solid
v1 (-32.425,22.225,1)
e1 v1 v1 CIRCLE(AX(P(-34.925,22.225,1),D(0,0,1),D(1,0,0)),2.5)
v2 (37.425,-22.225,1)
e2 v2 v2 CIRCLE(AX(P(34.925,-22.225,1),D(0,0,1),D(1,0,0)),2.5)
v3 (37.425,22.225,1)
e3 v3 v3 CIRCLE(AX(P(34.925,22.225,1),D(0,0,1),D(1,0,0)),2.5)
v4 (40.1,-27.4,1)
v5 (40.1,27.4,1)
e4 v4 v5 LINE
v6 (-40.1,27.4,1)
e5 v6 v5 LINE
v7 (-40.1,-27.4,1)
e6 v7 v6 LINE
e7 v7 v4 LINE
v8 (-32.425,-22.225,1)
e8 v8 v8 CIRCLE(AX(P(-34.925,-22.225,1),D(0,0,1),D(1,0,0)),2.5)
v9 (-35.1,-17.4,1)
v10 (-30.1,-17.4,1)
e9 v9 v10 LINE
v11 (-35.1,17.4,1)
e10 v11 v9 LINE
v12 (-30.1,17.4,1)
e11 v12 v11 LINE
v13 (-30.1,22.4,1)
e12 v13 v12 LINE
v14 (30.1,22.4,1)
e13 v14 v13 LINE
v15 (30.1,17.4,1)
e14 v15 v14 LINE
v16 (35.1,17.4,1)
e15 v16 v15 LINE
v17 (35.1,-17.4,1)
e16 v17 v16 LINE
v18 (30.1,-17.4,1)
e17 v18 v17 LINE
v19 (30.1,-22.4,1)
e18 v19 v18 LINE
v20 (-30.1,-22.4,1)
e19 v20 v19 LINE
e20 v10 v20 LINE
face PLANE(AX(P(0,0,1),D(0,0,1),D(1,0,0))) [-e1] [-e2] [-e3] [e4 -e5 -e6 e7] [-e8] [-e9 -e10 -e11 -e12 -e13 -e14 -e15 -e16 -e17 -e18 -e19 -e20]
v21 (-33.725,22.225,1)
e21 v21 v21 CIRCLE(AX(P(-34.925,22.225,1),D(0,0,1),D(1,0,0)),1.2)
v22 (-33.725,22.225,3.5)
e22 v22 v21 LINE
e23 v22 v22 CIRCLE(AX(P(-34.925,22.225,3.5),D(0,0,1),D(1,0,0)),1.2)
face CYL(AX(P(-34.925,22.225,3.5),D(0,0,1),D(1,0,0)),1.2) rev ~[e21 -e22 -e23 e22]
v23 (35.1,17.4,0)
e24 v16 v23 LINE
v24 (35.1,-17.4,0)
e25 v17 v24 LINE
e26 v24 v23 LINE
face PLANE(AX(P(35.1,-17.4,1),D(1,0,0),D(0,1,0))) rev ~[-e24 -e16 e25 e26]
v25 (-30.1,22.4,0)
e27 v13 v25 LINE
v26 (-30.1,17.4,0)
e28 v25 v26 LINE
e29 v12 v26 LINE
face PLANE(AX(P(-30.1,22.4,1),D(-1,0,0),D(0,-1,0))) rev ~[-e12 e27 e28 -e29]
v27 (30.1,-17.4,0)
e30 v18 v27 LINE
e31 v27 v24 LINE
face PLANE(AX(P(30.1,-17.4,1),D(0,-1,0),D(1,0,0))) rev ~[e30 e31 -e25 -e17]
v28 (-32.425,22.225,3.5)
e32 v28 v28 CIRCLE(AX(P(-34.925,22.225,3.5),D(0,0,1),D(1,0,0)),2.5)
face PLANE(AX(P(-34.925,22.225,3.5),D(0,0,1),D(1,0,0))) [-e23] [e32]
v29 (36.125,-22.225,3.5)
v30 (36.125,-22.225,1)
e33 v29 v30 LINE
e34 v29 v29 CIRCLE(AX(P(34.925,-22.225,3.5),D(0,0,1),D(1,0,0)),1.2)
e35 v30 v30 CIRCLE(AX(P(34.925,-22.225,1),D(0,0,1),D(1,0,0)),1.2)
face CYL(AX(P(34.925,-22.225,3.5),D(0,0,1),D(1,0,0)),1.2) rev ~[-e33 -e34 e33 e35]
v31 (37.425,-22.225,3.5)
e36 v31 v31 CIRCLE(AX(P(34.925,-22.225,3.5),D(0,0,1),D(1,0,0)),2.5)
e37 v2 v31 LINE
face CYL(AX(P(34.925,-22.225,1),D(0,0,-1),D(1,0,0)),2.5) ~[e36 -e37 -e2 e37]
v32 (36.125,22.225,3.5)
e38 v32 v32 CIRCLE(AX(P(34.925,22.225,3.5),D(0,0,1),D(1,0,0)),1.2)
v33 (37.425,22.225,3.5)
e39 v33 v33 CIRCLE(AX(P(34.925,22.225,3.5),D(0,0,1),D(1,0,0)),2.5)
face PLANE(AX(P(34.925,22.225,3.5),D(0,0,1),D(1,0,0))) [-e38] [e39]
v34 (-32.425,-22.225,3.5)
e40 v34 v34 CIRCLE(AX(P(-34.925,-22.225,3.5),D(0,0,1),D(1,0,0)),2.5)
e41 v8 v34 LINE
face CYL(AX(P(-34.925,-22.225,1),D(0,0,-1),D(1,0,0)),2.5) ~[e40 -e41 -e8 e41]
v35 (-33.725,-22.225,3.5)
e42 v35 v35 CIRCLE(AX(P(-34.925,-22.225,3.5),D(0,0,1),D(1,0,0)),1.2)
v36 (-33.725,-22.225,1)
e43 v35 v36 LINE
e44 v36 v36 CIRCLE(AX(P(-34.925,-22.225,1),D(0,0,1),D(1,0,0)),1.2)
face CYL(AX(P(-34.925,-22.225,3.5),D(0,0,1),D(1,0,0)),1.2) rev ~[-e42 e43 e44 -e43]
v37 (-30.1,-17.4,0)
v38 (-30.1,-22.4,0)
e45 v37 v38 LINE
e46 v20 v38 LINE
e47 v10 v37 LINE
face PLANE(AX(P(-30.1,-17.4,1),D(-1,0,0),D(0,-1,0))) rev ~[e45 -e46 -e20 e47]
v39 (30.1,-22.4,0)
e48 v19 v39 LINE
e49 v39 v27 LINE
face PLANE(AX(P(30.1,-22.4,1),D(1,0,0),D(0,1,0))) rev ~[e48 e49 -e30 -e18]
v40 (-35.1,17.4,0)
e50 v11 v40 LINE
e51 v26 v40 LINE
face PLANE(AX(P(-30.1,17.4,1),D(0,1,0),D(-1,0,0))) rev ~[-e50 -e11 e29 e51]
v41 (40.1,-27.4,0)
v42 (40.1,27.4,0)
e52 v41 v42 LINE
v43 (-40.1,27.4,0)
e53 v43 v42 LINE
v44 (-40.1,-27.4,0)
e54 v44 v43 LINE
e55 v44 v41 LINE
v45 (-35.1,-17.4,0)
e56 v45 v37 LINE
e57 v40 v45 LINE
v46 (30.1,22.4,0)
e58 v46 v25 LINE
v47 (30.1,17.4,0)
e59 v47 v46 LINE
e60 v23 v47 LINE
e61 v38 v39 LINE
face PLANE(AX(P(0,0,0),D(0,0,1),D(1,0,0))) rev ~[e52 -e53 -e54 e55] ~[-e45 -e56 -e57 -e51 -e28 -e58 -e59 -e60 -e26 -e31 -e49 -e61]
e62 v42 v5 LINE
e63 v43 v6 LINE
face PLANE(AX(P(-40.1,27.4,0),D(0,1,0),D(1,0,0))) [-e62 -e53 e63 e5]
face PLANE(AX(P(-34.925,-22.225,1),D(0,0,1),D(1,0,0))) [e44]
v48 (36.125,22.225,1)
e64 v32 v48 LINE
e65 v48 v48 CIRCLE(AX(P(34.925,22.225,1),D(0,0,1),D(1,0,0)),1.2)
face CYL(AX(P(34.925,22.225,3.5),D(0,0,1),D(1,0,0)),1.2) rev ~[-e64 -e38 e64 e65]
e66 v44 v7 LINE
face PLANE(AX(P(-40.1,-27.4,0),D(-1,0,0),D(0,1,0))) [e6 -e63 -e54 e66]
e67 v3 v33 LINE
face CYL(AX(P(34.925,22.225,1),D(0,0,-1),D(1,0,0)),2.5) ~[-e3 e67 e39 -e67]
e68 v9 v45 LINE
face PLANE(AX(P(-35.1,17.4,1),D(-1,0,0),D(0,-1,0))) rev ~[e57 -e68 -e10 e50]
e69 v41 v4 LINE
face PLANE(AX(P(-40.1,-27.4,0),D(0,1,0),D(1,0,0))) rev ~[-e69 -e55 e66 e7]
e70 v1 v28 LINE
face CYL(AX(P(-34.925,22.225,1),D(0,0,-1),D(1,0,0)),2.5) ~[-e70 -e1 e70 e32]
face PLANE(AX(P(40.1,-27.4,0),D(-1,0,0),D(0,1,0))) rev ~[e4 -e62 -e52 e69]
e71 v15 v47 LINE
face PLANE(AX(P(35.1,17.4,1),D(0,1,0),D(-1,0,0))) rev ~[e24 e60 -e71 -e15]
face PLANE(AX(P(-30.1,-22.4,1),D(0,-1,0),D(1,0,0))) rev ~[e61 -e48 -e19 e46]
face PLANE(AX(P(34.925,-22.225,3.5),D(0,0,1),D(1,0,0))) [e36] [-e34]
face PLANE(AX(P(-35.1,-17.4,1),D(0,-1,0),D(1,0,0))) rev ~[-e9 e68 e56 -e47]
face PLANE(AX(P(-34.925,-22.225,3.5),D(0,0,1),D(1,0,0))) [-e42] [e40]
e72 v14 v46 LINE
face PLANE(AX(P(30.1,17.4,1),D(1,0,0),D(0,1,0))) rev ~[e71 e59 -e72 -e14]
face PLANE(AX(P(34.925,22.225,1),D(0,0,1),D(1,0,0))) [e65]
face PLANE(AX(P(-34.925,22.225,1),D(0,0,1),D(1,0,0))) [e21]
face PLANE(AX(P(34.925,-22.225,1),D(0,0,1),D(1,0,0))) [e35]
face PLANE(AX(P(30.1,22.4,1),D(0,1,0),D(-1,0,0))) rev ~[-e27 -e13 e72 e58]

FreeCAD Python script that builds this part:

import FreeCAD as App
import Part
import Sketcher
from FreeCAD import Vector
Q = App.Units.Quantity


def add_polygon(sketch, points):
    """Adds a closed chain of lines whose ends are joined by coincident constraints."""
    first, n = sketch.GeometryCount, len(points)
    for a, b in zip(points, points[1:] + points[:1]):
        sketch.addGeometry(Part.LineSegment(App.Vector(*a, 0), App.Vector(*b, 0)), False)
    for i in range(n):
        sketch.addConstraint(Sketcher.Constraint("Coincident", first + i, 2, first + (i + 1) % n, 1))

doc = App.newDocument("Part")
body = doc.addObject("PartDesign::Body", "Body")

# Sketch on XY plane
sketch1 = body.newObject("Sketcher::SketchObject", "Sketch")
sketch1.AttachmentSupport = (doc.getObject("XY_Plane"), [""])
sketch1.MapMode = "FlatFace"
add_polygon(sketch1, [(-40, 27), (-40, -27), (40, -27), (40, 27)])  # lines 0-3
sketch1.addConstraint(Sketcher.Constraint("Vertical", 0))
sketch1.addConstraint(Sketcher.Constraint("Horizontal", 1))
sketch1.addConstraint(Sketcher.Constraint("Vertical", 2))
sketch1.addConstraint(Sketcher.Constraint("Horizontal", 3))
sketch1.addConstraint(Sketcher.Constraint("Symmetric", 0, 2, 2, 2, -1, 1))
sketch1.addConstraint(Sketcher.Constraint("DistanceX", 1, 1, 1, 2, Q("80.2 mm")))
sketch1.addConstraint(Sketcher.Constraint("DistanceY", 0, 2, 0, 1, Q("54.8 mm")))
pad1 = body.newObject("PartDesign::Pad", "Pad")
pad1.Profile = sketch1
pad1.Length = 1

# Sketch on XY plane
sketch2 = body.newObject("Sketcher::SketchObject", "Sketch001")
sketch2.AttachmentSupport = (doc.getObject("XY_Plane"), [""])
sketch2.MapMode = "FlatFace"
sketch2.AttachmentOffset = App.Placement(Vector(0, 0, 1), App.Rotation())
add_polygon(sketch2, [(-35, 17), (-35, -17), (-30, -17), (-30, -22), (30, -22), (30, -17), (35, -17), (35, 17), (30, 17), (30, 22), (-30, 22), (-30, 17)])  # lines 0-11
sketch2.addConstraint(Sketcher.Constraint("Vertical", 0))
sketch2.addConstraint(Sketcher.Constraint("Horizontal", 1))
sketch2.addConstraint(Sketcher.Constraint("Vertical", 2))
sketch2.addConstraint(Sketcher.Constraint("Horizontal", 3))
sketch2.addConstraint(Sketcher.Constraint("Vertical", 4))
sketch2.addConstraint(Sketcher.Constraint("Horizontal", 5))
sketch2.addConstraint(Sketcher.Constraint("Vertical", 6))
sketch2.addConstraint(Sketcher.Constraint("Horizontal", 7))
sketch2.addConstraint(Sketcher.Constraint("Vertical", 8))
sketch2.addConstraint(Sketcher.Constraint("Horizontal", 9))
sketch2.addConstraint(Sketcher.Constraint("Vertical", 10))
sketch2.addConstraint(Sketcher.Constraint("Horizontal", 11))
sketch2.addConstraint(Sketcher.Constraint("Symmetric", 0, 2, 6, 2, -1, 1))
sketch2.addConstraint(Sketcher.Constraint("Symmetric", 2, 2, 8, 2, -1, 1))
sketch2.addConstraint(Sketcher.Constraint("Symmetric", 4, 2, 10, 2, -1, 1))
sketch2.addConstraint(Sketcher.Constraint("Symmetric", 1, 2, 4, 2, -2))
sketch2.addConstraint(Sketcher.Constraint("Equal", 11, 2))
sketch2.addConstraint(Sketcher.Constraint("DistanceX", 1, 1, 1, 2, Q("5 mm")))
sketch2.addConstraint(Sketcher.Constraint("DistanceX", 3, 1, 3, 2, Q("60.2 mm")))
sketch2.addConstraint(Sketcher.Constraint("DistanceY", 0, 2, 0, 1, Q("34.8 mm")))
pocket1 = body.newObject("PartDesign::Pocket", "Pocket")
pocket1.Profile = sketch2
pocket1.Type = "ThroughAll"

# Sketch on XY plane
sketch3 = body.newObject("Sketcher::SketchObject", "Sketch002")
sketch3.AttachmentSupport = (doc.getObject("XY_Plane"), [""])
sketch3.MapMode = "FlatFace"
sketch3.AttachmentOffset = App.Placement(Vector(0, 0, 1), App.Rotation())
sketch3.addGeometry(Part.Circle(Vector(-34.9, 22.2, 0), Vector(0, 0, 1), 2.5), False)
sketch3.addGeometry(Part.Circle(Vector(-34.9, -22.2, 0), Vector(0, 0, 1), 2.5), False)
sketch3.addGeometry(Part.Circle(Vector(34.9, 22.2, 0), Vector(0, 0, 1), 2.5), False)
sketch3.addGeometry(Part.Circle(Vector(34.9, -22.2, 0), Vector(0, 0, 1), 2.5), False)
sketch3.addConstraint(Sketcher.Constraint("Equal", 0, 1))
sketch3.addConstraint(Sketcher.Constraint("Equal", 1, 2))
sketch3.addConstraint(Sketcher.Constraint("Equal", 2, 3))
sketch3.addConstraint(Sketcher.Constraint("Symmetric", 1, 3, 2, 3, -1, 1))
sketch3.addConstraint(Sketcher.Constraint("Symmetric", 0, 3, 3, 3, -1, 1))
sketch3.addConstraint(Sketcher.Constraint("Symmetric", 0, 3, 2, 3, -2))
sketch3.addConstraint(Sketcher.Constraint("Diameter", 0, Q("5 mm")))
sketch3.addConstraint(Sketcher.Constraint("DistanceY", 1, 3, 0, 3, Q("44.45 mm")))
sketch3.addConstraint(Sketcher.Constraint("DistanceX", 0, 3, 2, 3, Q("69.85 mm")))
pad2 = body.newObject("PartDesign::Pad", "Pad001")
pad2.Profile = sketch3
pad2.Length = 2.5

# Sketch on XY plane
sketch4 = body.newObject("Sketcher::SketchObject", "Sketch003")
sketch4.AttachmentSupport = (doc.getObject("XY_Plane"), [""])
sketch4.MapMode = "FlatFace"
sketch4.AttachmentOffset = App.Placement(Vector(0, 0, 3.5), App.Rotation())
sketch4.addGeometry(Part.Circle(Vector(-34.9, -22.2, 0), Vector(0, 0, 1), 1.2), False)
sketch4.addGeometry(Part.Circle(Vector(34.9, -22.2, 0), Vector(0, 0, 1), 1.2), False)
sketch4.addGeometry(Part.Circle(Vector(-34.9, 22.2, 0), Vector(0, 0, 1), 1.2), False)
sketch4.addGeometry(Part.Circle(Vector(34.9, 22.2, 0), Vector(0, 0, 1), 1.2), False)
sketch4.addConstraint(Sketcher.Constraint("Equal", 0, 1))
sketch4.addConstraint(Sketcher.Constraint("Equal", 1, 2))
sketch4.addConstraint(Sketcher.Constraint("Equal", 2, 3))
sketch4.addConstraint(Sketcher.Constraint("Symmetric", 1, 3, 2, 3, -1, 1))
sketch4.addConstraint(Sketcher.Constraint("Symmetric", 0, 3, 3, 3, -1, 1))
sketch4.addConstraint(Sketcher.Constraint("Symmetric", 0, 3, 1, 3, -2))
sketch4.addConstraint(Sketcher.Constraint("Diameter", 0, Q("2.4 mm")))
sketch4.addConstraint(Sketcher.Constraint("DistanceX", 0, 3, 1, 3, Q("69.85 mm")))
sketch4.addConstraint(Sketcher.Constraint("DistanceY", 0, 3, 2, 3, Q("44.45 mm")))
pocket2 = body.newObject("PartDesign::Pocket", "Pocket001")
pocket2.Profile = sketch4
pocket2.Length = 2.5

doc.recompute()
